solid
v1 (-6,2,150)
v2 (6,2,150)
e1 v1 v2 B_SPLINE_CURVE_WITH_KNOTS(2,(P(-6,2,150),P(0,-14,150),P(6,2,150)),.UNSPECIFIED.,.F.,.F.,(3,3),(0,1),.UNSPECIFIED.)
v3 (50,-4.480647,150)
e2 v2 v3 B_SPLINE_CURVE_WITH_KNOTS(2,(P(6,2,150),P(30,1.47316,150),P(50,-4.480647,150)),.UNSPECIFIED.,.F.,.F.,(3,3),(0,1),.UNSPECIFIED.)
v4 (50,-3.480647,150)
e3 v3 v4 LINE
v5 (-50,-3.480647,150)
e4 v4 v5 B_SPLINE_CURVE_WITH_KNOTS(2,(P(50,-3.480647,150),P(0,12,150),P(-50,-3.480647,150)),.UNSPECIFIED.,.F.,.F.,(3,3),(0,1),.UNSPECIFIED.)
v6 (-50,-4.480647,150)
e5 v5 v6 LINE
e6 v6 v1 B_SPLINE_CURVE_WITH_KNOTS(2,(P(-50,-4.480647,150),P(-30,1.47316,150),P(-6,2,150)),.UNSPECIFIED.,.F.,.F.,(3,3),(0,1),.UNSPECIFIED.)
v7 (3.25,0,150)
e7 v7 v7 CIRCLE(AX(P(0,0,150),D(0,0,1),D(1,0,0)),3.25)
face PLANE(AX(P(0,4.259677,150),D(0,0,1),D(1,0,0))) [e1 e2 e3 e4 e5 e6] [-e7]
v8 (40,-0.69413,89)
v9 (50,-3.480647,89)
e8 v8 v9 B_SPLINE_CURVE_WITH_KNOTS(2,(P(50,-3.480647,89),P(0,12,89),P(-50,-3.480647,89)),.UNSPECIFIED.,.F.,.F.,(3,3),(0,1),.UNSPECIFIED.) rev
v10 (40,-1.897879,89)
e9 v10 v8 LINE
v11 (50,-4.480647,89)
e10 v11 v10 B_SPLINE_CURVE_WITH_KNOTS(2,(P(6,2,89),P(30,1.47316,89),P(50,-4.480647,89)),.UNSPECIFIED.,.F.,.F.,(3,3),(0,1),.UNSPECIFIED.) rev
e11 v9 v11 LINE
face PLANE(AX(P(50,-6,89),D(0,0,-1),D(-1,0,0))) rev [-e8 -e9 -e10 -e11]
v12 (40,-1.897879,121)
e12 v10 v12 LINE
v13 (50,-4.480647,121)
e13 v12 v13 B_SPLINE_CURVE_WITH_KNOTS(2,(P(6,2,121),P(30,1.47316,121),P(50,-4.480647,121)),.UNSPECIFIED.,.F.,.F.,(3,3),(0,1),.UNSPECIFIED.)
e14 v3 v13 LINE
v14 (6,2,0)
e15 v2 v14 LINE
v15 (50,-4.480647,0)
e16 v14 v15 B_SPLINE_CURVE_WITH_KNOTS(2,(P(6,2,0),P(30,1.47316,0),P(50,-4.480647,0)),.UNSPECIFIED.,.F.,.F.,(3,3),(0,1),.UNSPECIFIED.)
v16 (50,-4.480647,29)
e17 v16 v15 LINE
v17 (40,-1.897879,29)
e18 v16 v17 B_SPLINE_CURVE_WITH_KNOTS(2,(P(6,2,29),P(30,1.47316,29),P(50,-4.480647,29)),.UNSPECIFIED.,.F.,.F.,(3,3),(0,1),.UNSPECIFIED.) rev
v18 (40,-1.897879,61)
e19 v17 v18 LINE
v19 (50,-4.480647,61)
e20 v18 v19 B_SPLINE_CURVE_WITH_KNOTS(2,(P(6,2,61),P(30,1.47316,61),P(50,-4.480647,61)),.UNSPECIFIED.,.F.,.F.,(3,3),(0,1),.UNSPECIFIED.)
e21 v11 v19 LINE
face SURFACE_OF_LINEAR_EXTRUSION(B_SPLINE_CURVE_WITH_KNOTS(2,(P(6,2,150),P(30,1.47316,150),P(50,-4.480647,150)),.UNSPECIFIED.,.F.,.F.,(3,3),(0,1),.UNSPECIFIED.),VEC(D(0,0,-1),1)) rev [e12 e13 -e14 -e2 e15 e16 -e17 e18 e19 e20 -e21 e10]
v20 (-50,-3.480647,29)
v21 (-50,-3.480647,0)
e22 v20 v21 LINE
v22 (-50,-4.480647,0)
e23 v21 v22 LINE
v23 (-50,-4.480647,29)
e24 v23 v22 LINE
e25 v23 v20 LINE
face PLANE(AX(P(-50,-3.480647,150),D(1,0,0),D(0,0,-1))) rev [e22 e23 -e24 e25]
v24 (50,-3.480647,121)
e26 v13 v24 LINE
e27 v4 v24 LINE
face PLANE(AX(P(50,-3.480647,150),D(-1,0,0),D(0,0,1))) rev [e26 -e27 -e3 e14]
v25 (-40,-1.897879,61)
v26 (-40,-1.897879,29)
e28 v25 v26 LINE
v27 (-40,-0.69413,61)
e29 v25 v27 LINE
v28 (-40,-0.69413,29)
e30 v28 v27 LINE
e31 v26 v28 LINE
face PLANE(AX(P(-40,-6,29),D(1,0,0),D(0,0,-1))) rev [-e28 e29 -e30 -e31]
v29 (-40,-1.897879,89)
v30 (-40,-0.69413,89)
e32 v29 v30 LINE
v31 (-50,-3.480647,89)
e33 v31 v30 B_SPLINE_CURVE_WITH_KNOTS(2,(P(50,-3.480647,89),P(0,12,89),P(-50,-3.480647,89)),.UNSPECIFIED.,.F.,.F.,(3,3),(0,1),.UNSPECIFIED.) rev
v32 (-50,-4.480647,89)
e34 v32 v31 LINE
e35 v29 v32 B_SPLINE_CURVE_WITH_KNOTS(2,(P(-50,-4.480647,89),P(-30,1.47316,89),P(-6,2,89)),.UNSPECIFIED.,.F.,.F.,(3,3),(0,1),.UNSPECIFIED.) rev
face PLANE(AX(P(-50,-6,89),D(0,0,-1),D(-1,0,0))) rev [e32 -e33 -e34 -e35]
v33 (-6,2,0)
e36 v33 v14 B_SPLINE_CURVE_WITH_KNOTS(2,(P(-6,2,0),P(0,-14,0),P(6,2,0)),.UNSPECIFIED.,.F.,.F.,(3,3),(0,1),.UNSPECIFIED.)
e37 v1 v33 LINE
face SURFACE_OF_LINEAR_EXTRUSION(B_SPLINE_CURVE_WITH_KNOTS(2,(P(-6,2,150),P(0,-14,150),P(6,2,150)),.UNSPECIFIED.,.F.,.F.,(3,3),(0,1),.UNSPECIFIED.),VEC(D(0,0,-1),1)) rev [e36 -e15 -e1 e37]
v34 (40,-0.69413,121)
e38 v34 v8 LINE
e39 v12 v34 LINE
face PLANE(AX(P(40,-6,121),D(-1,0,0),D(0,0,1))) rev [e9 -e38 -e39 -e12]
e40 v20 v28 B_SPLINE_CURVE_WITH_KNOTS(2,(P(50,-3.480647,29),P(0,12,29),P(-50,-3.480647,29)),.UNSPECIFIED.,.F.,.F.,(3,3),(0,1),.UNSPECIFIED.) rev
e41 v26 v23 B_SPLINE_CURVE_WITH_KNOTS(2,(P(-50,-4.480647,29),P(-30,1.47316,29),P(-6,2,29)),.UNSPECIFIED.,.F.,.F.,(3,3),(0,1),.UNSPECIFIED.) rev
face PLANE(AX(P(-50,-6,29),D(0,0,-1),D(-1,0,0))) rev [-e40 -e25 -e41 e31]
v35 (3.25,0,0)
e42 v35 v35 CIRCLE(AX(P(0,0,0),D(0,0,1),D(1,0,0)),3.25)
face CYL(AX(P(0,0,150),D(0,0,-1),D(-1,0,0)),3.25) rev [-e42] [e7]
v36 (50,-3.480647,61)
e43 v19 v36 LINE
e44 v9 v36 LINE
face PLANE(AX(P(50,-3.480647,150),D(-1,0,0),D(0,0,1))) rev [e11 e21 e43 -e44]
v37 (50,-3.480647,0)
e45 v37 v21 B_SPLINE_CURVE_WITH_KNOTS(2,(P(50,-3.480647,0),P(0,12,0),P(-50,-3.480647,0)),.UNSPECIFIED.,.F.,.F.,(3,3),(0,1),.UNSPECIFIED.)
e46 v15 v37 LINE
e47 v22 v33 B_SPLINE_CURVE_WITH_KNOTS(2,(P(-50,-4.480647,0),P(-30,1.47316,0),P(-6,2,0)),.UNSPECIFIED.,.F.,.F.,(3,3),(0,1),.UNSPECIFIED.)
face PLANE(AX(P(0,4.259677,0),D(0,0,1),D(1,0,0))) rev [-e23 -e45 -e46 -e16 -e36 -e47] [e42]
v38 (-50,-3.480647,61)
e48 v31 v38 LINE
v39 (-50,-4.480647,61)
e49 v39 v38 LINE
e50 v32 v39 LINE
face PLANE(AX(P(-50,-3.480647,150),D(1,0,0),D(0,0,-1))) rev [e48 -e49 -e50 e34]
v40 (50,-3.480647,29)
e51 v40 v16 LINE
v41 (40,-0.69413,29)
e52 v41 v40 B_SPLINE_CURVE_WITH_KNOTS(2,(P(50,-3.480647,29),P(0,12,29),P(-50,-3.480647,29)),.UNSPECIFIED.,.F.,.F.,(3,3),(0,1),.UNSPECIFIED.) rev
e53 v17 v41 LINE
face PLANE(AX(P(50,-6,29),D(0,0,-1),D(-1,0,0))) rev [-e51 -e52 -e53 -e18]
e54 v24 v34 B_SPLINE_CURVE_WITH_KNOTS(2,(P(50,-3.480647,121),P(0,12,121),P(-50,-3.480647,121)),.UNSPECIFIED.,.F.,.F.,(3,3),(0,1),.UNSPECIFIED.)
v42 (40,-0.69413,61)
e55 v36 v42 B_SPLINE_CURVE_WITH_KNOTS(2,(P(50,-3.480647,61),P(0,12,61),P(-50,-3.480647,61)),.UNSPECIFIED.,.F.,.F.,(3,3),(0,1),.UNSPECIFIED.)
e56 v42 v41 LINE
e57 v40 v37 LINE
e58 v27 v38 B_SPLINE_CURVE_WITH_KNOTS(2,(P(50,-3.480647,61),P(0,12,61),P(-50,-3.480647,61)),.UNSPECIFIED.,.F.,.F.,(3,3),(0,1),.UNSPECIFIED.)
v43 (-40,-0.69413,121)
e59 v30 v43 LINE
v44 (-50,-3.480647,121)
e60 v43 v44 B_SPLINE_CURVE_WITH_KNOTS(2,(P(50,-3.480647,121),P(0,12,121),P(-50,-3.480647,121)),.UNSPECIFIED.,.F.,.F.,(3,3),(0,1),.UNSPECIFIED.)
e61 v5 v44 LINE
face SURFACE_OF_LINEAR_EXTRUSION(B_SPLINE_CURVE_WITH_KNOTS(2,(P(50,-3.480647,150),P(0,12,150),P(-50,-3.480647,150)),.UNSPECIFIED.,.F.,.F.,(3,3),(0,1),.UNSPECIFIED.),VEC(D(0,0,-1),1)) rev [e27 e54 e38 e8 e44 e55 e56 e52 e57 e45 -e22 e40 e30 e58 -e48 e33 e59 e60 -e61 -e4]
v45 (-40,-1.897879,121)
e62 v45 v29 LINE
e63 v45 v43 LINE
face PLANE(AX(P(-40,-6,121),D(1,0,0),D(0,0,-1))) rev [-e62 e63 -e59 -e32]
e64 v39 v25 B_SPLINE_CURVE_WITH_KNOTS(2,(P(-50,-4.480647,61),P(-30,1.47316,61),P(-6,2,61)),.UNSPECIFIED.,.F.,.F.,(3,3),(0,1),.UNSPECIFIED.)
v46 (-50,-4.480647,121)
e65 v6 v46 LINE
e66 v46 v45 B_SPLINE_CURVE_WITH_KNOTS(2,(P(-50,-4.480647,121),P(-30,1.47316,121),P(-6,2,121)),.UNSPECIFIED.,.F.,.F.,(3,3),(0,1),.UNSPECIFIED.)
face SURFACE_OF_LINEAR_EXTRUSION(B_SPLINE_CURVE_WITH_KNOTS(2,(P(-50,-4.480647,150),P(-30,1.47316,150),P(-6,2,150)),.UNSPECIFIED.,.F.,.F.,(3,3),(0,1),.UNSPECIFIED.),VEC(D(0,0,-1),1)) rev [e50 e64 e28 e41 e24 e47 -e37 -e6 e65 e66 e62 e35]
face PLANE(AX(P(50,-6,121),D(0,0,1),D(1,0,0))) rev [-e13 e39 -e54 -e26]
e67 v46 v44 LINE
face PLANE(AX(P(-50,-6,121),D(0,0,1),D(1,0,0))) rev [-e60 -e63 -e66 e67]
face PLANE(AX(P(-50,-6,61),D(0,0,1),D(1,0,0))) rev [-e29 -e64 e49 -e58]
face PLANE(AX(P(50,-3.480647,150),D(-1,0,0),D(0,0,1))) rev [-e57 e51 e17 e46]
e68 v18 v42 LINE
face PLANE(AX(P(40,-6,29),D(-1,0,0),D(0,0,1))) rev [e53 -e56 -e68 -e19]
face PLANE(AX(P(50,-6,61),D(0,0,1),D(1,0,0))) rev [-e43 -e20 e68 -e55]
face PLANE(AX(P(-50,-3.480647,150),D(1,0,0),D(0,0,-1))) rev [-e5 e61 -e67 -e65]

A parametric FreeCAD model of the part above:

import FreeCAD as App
import Part
import Sketcher


def add_polygon(sketch, points):
    """Adds a closed chain of lines whose ends are joined by coincident constraints."""
    first, n = sketch.GeometryCount, len(points)
    for a, b in zip(points, points[1:] + points[:1]):
        sketch.addGeometry(Part.LineSegment(App.Vector(*a, 0), App.Vector(*b, 0)), False)
    for i in range(n):
        sketch.addConstraint(Sketcher.Constraint("Coincident", first + i, 2, first + (i + 1) % n, 1))

doc = App.newDocument("Part")
body = doc.addObject("PartDesign::Body", "Body")

# Sketch on XY plane
sketch1 = body.newObject("Sketcher::SketchObject", "Sketch")
sketch1.AttachmentSupport = (doc.getObject("XY_Plane"), [""])
sketch1.MapMode = "FlatFace"
sketch1.addGeometry([
    Part.LineSegment(App.Vector(-50, -3.480647, 0), App.Vector(-50, -4.480647, 0)),  # 0
    Part.BSplineCurve([App.Vector(-6, 2, 0), App.Vector(-30, 1.47316, 0), App.Vector(-50, -4.480647, 0)], [3, 3], [0, 1], False, 2, [1, 1, 1], False),  # 1
    Part.BSplineCurve([App.Vector(-6, 2, 0), App.Vector(0, -14, 0), App.Vector(6, 2, 0)], [3, 3], [0, 1], False, 2, [1, 1, 1], False),  # 2
    Part.BSplineCurve([App.Vector(6, 2, 0), App.Vector(30, 1.47316, 0), App.Vector(50, -4.480647, 0)], [3, 3], [0, 1], False, 2, [1, 1, 1], False),  # 3
    Part.LineSegment(App.Vector(50, -4.480647, 0), App.Vector(50, -3.480647, 0)),  # 4
    Part.BSplineCurve([App.Vector(-50, -3.480647, 0), App.Vector(0, 12, 0), App.Vector(50, -3.480647, 0)], [3, 3], [0, 1], False, 2, [1, 1, 1], False),  # 5
    Part.Circle(App.Vector(0, 0, 0), App.Vector(0, 0, 1), 3.25),  # 6
], False)
sketch1.addConstraint([
    Sketcher.Constraint("Block", 1),
    Sketcher.Constraint("Block", 2),
    Sketcher.Constraint("Block", 3),
    Sketcher.Constraint("Block", 5),
    Sketcher.Constraint("Coincident", 0, 2, 1, 2),
    Sketcher.Constraint("Coincident", 3, 2, 4, 1),
    Sketcher.Constraint("Coincident", 4, 2, 5, 2),
    Sketcher.Constraint("Coincident", 5, 1, 0, 1),
    Sketcher.Constraint("Coincident", 6, 3, -1, 1),
    Sketcher.Constraint("Diameter", 6, 6.5),
])
pad1 = body.newObject("PartDesign::Pad", "Pad")
pad1.Profile = sketch1
pad1.Length = 150

# Sketch on XZ plane
sketch2 = body.newObject("Sketcher::SketchObject", "Sketch001")
sketch2.AttachmentSupport = (doc.getObject("XZ_Plane"), [""])
sketch2.MapMode = "FlatFace"
add_polygon(sketch2, [(-50, 89), (-50, 121), (-40, 121), (-40, 89)])  # lines 0-3
add_polygon(sketch2, [(-50, 29), (-50, 61), (-40, 61), (-40, 29)])  # lines 4-7
add_polygon(sketch2, [(40, 29), (40, 61), (50, 61), (50, 29)])  # lines 8-11
add_polygon(sketch2, [(40, 89), (40, 121), (50, 121), (50, 89)])  # lines 12-15
sketch2.addConstraint([
    Sketcher.Constraint("Vertical", 0),
    Sketcher.Constraint("Horizontal", 1),
    Sketcher.Constraint("Vertical", 2),
    Sketcher.Constraint("Horizontal", 3),
    Sketcher.Constraint("Vertical", 4),
    Sketcher.Constraint("Horizontal", 5),
    Sketcher.Constraint("Vertical", 6),
    Sketcher.Constraint("Horizontal", 7),
    Sketcher.Constraint("Vertical", 8),
    Sketcher.Constraint("Horizontal", 9),
    Sketcher.Constraint("Vertical", 10),
    Sketcher.Constraint("Horizontal", 11),
    Sketcher.Constraint("Vertical", 12),
    Sketcher.Constraint("Horizontal", 13),
    Sketcher.Constraint("Vertical", 14),
    Sketcher.Constraint("Horizontal", 15),
    Sketcher.Constraint("Symmetric", 5, 2, 8, 2, -2),
    Sketcher.Constraint("Symmetric", 7, 2, 10, 2, -2),
    Sketcher.Constraint("Symmetric", 1, 2, 12, 2, -2),
    Sketcher.Constraint("Symmetric", 3, 2, 14, 2, -2),
    Sketcher.Constraint("Vertical", 3, 2, 4, 2),
    Sketcher.Constraint("Vertical", 2, 2, 5, 2),
    Sketcher.Constraint("Equal", 2, 4),
    Sketcher.Constraint("DistanceX", 1, 1, 1, 2, 10.0),
    Sketcher.Constraint("DistanceY", 0, 1, 0, 2, 32.0),
    Sketcher.Constraint("DistanceX", 0, 2, -1, 1, 50.0),
    Sketcher.Constraint("DistanceY", -1, 1, 0, 2, 121.0),
    Sketcher.Constraint("DistanceY", -1, 1, 4, 2, 61.0),
])
pocket1 = body.newObject("PartDesign::Pocket", "Pocket")
pocket1.Profile = sketch2
pocket1.Type = "ThroughAll"
pocket1.Midplane = True

doc.recompute()
